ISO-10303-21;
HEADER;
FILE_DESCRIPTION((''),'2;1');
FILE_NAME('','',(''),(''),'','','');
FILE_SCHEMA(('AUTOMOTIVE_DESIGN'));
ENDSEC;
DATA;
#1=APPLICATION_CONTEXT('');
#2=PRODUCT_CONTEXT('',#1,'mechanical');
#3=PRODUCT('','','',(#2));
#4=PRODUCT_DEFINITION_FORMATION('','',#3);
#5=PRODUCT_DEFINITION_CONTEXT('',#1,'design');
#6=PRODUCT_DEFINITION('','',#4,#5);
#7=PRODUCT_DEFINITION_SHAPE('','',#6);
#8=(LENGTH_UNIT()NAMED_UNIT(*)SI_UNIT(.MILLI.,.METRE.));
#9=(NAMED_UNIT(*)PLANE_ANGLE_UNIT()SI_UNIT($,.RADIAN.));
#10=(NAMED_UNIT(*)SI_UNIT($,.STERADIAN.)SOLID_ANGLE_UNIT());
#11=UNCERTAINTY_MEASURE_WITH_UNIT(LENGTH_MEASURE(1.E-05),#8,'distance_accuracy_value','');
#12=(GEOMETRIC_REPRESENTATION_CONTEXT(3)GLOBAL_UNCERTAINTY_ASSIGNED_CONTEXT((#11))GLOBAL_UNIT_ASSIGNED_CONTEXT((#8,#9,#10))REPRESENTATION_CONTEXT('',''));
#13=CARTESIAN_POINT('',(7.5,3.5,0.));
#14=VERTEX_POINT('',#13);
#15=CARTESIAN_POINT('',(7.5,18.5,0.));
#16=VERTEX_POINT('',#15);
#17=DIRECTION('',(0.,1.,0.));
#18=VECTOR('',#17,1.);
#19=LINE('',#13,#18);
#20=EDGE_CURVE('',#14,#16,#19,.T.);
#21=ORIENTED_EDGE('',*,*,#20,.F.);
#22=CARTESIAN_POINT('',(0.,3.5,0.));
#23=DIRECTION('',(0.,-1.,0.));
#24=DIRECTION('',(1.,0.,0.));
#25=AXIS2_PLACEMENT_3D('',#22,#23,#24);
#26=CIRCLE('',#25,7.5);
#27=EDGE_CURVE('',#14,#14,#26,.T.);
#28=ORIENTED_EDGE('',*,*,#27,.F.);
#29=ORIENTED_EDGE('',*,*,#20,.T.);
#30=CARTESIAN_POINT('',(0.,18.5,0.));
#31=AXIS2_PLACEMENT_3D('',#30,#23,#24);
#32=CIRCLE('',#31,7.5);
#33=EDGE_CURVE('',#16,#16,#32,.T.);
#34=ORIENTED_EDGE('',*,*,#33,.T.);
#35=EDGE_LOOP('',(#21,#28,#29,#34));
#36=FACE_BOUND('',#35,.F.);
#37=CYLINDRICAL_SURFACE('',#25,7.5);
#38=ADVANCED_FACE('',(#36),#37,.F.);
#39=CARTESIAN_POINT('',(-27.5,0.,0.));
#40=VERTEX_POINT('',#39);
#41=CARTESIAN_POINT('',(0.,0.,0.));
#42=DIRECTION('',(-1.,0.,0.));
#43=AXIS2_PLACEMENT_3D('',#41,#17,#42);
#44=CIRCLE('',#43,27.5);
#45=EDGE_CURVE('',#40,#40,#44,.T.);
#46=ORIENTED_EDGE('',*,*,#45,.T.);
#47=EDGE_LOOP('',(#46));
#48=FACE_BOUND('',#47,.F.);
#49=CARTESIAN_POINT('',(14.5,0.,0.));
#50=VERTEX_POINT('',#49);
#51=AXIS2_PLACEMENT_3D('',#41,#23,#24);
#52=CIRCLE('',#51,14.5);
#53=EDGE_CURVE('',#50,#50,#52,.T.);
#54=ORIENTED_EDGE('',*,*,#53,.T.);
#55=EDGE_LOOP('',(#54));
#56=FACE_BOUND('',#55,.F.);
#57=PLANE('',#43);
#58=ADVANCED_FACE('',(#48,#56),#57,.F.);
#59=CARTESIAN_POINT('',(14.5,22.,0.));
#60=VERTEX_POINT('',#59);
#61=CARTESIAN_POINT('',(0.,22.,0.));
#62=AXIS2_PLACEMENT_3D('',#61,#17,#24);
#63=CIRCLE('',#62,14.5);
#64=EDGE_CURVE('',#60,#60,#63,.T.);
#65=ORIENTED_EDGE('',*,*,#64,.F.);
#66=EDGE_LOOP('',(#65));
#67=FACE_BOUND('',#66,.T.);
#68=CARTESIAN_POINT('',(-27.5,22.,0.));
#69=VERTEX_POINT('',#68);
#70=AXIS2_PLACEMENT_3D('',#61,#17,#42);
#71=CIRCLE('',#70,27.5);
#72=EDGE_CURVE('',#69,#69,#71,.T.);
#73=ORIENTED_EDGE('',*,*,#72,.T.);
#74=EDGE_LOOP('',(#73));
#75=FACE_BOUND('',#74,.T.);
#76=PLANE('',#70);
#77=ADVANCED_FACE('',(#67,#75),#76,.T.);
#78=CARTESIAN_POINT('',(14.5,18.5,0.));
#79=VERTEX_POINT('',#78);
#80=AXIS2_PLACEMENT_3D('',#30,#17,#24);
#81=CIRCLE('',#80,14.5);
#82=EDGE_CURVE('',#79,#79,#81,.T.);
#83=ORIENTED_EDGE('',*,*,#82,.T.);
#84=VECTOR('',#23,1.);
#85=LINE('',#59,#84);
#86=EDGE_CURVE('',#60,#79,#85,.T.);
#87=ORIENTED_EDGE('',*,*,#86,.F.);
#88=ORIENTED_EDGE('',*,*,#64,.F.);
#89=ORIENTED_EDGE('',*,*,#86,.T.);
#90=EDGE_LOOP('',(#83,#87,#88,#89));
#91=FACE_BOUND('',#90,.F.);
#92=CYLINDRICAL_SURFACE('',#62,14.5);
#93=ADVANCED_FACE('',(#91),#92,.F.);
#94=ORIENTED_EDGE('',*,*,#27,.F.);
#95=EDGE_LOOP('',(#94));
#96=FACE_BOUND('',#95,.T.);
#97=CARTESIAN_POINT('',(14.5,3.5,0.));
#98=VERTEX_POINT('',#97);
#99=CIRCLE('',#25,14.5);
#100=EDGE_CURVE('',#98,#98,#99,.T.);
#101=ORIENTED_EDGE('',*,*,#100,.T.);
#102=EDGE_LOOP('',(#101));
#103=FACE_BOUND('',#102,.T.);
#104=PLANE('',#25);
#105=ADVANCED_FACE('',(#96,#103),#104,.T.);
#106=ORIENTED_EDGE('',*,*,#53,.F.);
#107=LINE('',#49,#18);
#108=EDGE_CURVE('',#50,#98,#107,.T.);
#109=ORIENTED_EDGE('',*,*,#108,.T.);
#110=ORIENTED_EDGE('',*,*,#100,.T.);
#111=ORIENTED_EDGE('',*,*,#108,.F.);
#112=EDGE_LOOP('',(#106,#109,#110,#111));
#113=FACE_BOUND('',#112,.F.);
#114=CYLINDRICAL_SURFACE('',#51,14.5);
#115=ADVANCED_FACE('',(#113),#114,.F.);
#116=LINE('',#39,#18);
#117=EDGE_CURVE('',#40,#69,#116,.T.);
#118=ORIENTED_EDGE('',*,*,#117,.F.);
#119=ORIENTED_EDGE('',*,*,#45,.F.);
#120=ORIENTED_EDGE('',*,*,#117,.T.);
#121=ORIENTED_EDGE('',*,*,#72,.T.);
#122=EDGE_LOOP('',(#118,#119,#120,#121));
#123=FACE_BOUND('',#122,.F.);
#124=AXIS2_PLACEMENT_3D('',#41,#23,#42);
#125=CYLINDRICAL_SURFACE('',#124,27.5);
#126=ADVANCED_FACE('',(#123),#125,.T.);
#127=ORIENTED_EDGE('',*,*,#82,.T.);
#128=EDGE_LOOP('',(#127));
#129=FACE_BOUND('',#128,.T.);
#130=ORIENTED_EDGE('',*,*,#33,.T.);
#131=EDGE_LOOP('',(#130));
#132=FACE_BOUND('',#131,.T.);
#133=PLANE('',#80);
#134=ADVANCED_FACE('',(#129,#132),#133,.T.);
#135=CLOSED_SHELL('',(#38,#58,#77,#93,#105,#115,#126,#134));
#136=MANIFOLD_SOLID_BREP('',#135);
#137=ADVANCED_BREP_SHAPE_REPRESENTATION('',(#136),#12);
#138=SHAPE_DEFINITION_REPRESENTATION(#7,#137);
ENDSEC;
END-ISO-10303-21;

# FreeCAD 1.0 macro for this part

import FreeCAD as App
import Part
import Sketcher

V = App.Vector

doc = App.newDocument("Part")
body = doc.addObject("PartDesign::Body", "Body")

sketch1 = doc.addObject("Sketcher::SketchObject", "Sketch")
body.addObject(sketch1)
sketch1.AttachmentSupport = (doc.XZ_Plane, [""])
sketch1.MapMode = "FlatFace"
sketch1.addGeometry(Part.Circle(V(0, 0, 0), V(0, 0, 1), 27.5), False)
sketch1.addConstraint([
    Sketcher.Constraint("Coincident", 0, 3, -1, 1),
    Sketcher.Constraint("Diameter", 0, 55.0),
])
pad1 = doc.addObject("PartDesign::Pad", "Pad")
body.addObject(pad1)
pad1.Profile = sketch1
pad1.Length = 22
pad1.Reversed = True

sketch2 = doc.addObject("Sketcher::SketchObject", "Sketch001")
body.addObject(sketch2)
sketch2.AttachmentSupport = (doc.XZ_Plane, [""])
sketch2.MapMode = "FlatFace"
sketch2.AttachmentOffset = App.Placement(V(0, 0, -22), App.Rotation())
sketch2.addGeometry(Part.Circle(V(0, 0, 0), V(0, 0, 1), 14.5), False)
sketch2.addConstraint([
    Sketcher.Constraint("Coincident", 0, 3, -1, 1),
    Sketcher.Constraint("Diameter", 0, 29.0),
])
pocket1 = doc.addObject("PartDesign::Pocket", "Pocket")
body.addObject(pocket1)
pocket1.Profile = sketch2
pocket1.Length = 3.5
pocket1.Reversed = True

sketch3 = doc.addObject("Sketcher::SketchObject", "Sketch002")
body.addObject(sketch3)
sketch3.AttachmentSupport = (doc.XZ_Plane, [""])
sketch3.MapMode = "FlatFace"
sketch3.addGeometry(Part.Circle(V(0, 0, 0), V(0, 0, 1), 14.5), False)
sketch3.addConstraint([
    Sketcher.Constraint("Coincident", 0, 3, -1, 1),
    Sketcher.Constraint("Diameter", 0, 29.0),
])
pocket2 = doc.addObject("PartDesign::Pocket", "Pocket001")
body.addObject(pocket2)
pocket2.Profile = sketch3
pocket2.Length = 3.5

sketch4 = doc.addObject("Sketcher::SketchObject", "Sketch003")
body.addObject(sketch4)
sketch4.AttachmentSupport = (doc.XZ_Plane, [""])
sketch4.MapMode = "FlatFace"
sketch4.AttachmentOffset = App.Placement(V(0, 0, -3.5), App.Rotation())
sketch4.addGeometry(Part.Circle(V(0, 0, 0), V(0, 0, 1), 7.5), False)
sketch4.addConstraint([
    Sketcher.Constraint("Coincident", 0, 3, -1, 1),
    Sketcher.Constraint("Diameter", 0, 15.0),
])
pocket3 = doc.addObject("PartDesign::Pocket", "Pocket002")
body.addObject(pocket3)
pocket3.Profile = sketch4
pocket3.Length = 36.5

doc.recompute()
